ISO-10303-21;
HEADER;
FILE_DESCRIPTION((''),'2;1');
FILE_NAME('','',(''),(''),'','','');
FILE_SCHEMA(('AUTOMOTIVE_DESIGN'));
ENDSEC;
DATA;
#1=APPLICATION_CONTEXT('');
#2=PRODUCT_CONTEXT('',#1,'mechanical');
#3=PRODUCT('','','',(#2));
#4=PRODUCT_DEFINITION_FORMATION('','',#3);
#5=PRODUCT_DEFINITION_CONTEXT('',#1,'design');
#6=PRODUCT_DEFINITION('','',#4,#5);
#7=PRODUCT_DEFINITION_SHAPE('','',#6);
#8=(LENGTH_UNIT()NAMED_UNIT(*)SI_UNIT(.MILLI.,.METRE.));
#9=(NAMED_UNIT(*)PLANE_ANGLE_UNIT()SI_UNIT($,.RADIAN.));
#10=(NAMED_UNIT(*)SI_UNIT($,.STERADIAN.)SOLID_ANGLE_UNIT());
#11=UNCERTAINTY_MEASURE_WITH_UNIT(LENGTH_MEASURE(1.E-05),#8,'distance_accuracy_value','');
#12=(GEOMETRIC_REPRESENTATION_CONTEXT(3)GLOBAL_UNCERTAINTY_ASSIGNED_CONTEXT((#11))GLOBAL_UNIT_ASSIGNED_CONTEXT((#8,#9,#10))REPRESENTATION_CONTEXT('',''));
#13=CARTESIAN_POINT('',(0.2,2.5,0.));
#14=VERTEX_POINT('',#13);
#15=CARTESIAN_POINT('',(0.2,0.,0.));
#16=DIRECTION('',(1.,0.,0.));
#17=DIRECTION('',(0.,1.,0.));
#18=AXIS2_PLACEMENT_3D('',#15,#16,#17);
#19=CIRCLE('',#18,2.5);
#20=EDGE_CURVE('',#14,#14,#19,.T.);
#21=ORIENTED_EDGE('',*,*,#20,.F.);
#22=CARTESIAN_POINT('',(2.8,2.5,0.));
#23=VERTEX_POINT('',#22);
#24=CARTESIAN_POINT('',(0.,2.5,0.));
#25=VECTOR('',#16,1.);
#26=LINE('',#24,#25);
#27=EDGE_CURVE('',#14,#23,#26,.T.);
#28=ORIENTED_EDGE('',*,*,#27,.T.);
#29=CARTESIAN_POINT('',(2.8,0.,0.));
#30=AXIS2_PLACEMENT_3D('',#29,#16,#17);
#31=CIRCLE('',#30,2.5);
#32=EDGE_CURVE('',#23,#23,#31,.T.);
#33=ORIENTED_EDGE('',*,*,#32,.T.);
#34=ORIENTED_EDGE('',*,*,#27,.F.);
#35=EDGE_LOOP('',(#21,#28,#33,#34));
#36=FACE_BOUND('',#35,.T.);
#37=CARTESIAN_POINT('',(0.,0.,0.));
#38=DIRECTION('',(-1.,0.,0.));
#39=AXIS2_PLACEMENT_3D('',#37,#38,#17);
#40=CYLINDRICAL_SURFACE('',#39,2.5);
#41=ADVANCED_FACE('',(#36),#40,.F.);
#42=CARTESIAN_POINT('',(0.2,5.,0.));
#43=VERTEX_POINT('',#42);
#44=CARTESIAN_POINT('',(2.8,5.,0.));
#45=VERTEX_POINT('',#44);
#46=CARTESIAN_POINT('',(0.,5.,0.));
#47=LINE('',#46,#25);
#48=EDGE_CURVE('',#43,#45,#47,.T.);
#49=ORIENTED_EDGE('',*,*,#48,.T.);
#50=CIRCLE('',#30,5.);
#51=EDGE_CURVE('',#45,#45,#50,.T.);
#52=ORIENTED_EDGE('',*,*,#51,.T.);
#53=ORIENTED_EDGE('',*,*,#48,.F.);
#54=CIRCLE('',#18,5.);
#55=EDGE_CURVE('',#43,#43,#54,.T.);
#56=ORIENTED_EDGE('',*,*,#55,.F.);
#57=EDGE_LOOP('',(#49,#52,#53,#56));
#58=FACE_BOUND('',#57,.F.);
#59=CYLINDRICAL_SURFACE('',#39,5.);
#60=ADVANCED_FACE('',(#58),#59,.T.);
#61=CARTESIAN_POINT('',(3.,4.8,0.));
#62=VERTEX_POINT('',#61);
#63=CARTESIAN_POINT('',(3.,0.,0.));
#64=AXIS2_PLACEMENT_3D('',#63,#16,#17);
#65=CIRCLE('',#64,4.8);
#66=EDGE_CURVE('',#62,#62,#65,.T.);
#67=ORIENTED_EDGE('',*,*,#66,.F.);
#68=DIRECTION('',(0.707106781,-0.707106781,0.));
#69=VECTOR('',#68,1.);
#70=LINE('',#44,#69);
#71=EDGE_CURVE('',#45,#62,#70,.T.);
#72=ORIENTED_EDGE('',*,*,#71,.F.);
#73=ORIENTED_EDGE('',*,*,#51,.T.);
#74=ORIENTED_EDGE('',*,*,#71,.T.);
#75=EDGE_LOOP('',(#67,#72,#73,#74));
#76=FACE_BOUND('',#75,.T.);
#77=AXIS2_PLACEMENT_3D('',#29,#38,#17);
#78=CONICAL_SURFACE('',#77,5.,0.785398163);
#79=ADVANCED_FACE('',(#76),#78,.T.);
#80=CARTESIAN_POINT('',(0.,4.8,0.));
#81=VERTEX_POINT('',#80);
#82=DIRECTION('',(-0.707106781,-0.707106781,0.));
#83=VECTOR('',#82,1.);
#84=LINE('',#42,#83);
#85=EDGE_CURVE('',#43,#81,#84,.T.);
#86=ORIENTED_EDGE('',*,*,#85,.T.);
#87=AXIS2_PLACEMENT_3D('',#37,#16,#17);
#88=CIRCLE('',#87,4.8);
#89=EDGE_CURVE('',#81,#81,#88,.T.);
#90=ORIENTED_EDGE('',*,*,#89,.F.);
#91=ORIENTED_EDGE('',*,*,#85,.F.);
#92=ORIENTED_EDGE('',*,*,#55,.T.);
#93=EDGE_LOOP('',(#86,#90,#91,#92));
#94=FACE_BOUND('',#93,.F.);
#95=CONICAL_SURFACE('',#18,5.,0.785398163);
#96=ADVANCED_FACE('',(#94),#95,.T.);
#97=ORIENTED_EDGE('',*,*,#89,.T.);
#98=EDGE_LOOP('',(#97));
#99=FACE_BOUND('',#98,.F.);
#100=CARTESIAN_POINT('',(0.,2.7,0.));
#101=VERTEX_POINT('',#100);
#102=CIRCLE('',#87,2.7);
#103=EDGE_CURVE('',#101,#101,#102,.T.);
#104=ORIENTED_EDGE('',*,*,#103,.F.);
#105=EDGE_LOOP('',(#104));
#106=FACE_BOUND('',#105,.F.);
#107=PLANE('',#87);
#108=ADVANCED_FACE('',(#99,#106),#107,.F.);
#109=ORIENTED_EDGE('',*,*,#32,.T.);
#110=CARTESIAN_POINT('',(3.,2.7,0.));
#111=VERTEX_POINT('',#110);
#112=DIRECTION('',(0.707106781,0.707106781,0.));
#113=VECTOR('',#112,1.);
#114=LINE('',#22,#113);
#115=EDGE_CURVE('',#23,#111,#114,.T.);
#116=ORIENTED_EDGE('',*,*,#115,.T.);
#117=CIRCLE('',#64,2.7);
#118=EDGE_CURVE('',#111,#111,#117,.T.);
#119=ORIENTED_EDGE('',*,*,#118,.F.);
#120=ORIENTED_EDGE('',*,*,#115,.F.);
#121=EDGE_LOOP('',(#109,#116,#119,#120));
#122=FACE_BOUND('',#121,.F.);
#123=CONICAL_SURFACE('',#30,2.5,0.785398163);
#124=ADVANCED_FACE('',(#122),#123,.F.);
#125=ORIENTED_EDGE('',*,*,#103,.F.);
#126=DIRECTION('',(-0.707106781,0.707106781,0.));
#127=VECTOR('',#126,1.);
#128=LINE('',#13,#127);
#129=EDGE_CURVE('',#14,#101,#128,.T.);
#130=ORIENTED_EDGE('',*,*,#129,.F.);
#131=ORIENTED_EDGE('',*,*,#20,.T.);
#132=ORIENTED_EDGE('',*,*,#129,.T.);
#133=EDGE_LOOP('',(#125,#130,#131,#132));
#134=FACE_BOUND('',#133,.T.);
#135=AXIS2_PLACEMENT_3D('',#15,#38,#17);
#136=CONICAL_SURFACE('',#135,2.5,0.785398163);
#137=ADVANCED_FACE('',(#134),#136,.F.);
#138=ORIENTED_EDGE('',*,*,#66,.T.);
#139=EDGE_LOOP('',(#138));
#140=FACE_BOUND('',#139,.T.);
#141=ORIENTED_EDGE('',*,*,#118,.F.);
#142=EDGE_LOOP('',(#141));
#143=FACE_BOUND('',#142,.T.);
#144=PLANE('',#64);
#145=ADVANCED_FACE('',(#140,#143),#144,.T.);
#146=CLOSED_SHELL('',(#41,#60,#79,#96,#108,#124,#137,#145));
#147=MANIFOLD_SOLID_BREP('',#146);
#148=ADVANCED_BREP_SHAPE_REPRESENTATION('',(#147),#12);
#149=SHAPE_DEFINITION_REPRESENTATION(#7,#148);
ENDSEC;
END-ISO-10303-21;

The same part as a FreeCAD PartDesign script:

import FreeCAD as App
import Part
import Sketcher

V = App.Vector


def edges_at(feature, points):
    """Names of the edges that pass closest to the given points."""
    edges = feature.Shape.Edges
    near = lambda p: min(range(len(edges)), key=lambda i: edges[i].distToShape(Part.Vertex(*p))[0])
    return sorted({f"Edge{near(p) + 1}" for p in points})

doc = App.newDocument("Part")
params = doc.addObject("Spreadsheet::Sheet", "Params")
for row, (alias, value) in enumerate([
    ("sketch1_diameter", "10 mm"),
    ("sketch1_diameter2", "5 mm"),
    ("pad1_length", "3 mm"),
    ("chamfer_size", "0.2 mm"),
], start=1):
    params.set(f"A{row}", alias)
    params.set(f"B{row}", "=" + value)
    params.setAlias(f"B{row}", alias)

body = doc.addObject("PartDesign::Body", "Body")

# Sketch on YZ plane
sketch1 = body.newObject("Sketcher::SketchObject", "Sketch")
sketch1.AttachmentSupport = (doc.getObject("YZ_Plane"), [""])
sketch1.MapMode = "FlatFace"
sketch1.addGeometry(Part.Circle(V(0, 0, 0), V(0, 0, 1), 5), False)
sketch1.addGeometry(Part.Circle(V(0, 0, 0), V(0, 0, 1), 2.5), False)
sketch1.addConstraint(Sketcher.Constraint("Coincident", 0, 3, -1, 1))
sketch1.addConstraint(Sketcher.Constraint("Coincident", 1, 3, -1, 1))
sketch1.addConstraint(Sketcher.Constraint("Diameter", 0, 10.0))
sketch1.addConstraint(Sketcher.Constraint("Diameter", 1, 5.0))
sketch1.setExpression("Constraints[2]", "Params.sketch1_diameter")
sketch1.setExpression("Constraints[3]", "Params.sketch1_diameter2")
pad1 = body.newObject("PartDesign::Pad", "Pad")
pad1.Profile = sketch1
pad1.setExpression("Length", "Params.pad1_length")
doc.recompute()

chamfer = body.newObject("PartDesign::Chamfer", "Chamfer")
chamfer.Base = (pad1, edges_at(pad1, [
    (3, -5, 0),
    (0, -5, 0),
    (3, -2.5, 0),
    (0, -2.5, 0),
]))
chamfer.setExpression("Size", "Params.chamfer_size")

doc.recompute()
